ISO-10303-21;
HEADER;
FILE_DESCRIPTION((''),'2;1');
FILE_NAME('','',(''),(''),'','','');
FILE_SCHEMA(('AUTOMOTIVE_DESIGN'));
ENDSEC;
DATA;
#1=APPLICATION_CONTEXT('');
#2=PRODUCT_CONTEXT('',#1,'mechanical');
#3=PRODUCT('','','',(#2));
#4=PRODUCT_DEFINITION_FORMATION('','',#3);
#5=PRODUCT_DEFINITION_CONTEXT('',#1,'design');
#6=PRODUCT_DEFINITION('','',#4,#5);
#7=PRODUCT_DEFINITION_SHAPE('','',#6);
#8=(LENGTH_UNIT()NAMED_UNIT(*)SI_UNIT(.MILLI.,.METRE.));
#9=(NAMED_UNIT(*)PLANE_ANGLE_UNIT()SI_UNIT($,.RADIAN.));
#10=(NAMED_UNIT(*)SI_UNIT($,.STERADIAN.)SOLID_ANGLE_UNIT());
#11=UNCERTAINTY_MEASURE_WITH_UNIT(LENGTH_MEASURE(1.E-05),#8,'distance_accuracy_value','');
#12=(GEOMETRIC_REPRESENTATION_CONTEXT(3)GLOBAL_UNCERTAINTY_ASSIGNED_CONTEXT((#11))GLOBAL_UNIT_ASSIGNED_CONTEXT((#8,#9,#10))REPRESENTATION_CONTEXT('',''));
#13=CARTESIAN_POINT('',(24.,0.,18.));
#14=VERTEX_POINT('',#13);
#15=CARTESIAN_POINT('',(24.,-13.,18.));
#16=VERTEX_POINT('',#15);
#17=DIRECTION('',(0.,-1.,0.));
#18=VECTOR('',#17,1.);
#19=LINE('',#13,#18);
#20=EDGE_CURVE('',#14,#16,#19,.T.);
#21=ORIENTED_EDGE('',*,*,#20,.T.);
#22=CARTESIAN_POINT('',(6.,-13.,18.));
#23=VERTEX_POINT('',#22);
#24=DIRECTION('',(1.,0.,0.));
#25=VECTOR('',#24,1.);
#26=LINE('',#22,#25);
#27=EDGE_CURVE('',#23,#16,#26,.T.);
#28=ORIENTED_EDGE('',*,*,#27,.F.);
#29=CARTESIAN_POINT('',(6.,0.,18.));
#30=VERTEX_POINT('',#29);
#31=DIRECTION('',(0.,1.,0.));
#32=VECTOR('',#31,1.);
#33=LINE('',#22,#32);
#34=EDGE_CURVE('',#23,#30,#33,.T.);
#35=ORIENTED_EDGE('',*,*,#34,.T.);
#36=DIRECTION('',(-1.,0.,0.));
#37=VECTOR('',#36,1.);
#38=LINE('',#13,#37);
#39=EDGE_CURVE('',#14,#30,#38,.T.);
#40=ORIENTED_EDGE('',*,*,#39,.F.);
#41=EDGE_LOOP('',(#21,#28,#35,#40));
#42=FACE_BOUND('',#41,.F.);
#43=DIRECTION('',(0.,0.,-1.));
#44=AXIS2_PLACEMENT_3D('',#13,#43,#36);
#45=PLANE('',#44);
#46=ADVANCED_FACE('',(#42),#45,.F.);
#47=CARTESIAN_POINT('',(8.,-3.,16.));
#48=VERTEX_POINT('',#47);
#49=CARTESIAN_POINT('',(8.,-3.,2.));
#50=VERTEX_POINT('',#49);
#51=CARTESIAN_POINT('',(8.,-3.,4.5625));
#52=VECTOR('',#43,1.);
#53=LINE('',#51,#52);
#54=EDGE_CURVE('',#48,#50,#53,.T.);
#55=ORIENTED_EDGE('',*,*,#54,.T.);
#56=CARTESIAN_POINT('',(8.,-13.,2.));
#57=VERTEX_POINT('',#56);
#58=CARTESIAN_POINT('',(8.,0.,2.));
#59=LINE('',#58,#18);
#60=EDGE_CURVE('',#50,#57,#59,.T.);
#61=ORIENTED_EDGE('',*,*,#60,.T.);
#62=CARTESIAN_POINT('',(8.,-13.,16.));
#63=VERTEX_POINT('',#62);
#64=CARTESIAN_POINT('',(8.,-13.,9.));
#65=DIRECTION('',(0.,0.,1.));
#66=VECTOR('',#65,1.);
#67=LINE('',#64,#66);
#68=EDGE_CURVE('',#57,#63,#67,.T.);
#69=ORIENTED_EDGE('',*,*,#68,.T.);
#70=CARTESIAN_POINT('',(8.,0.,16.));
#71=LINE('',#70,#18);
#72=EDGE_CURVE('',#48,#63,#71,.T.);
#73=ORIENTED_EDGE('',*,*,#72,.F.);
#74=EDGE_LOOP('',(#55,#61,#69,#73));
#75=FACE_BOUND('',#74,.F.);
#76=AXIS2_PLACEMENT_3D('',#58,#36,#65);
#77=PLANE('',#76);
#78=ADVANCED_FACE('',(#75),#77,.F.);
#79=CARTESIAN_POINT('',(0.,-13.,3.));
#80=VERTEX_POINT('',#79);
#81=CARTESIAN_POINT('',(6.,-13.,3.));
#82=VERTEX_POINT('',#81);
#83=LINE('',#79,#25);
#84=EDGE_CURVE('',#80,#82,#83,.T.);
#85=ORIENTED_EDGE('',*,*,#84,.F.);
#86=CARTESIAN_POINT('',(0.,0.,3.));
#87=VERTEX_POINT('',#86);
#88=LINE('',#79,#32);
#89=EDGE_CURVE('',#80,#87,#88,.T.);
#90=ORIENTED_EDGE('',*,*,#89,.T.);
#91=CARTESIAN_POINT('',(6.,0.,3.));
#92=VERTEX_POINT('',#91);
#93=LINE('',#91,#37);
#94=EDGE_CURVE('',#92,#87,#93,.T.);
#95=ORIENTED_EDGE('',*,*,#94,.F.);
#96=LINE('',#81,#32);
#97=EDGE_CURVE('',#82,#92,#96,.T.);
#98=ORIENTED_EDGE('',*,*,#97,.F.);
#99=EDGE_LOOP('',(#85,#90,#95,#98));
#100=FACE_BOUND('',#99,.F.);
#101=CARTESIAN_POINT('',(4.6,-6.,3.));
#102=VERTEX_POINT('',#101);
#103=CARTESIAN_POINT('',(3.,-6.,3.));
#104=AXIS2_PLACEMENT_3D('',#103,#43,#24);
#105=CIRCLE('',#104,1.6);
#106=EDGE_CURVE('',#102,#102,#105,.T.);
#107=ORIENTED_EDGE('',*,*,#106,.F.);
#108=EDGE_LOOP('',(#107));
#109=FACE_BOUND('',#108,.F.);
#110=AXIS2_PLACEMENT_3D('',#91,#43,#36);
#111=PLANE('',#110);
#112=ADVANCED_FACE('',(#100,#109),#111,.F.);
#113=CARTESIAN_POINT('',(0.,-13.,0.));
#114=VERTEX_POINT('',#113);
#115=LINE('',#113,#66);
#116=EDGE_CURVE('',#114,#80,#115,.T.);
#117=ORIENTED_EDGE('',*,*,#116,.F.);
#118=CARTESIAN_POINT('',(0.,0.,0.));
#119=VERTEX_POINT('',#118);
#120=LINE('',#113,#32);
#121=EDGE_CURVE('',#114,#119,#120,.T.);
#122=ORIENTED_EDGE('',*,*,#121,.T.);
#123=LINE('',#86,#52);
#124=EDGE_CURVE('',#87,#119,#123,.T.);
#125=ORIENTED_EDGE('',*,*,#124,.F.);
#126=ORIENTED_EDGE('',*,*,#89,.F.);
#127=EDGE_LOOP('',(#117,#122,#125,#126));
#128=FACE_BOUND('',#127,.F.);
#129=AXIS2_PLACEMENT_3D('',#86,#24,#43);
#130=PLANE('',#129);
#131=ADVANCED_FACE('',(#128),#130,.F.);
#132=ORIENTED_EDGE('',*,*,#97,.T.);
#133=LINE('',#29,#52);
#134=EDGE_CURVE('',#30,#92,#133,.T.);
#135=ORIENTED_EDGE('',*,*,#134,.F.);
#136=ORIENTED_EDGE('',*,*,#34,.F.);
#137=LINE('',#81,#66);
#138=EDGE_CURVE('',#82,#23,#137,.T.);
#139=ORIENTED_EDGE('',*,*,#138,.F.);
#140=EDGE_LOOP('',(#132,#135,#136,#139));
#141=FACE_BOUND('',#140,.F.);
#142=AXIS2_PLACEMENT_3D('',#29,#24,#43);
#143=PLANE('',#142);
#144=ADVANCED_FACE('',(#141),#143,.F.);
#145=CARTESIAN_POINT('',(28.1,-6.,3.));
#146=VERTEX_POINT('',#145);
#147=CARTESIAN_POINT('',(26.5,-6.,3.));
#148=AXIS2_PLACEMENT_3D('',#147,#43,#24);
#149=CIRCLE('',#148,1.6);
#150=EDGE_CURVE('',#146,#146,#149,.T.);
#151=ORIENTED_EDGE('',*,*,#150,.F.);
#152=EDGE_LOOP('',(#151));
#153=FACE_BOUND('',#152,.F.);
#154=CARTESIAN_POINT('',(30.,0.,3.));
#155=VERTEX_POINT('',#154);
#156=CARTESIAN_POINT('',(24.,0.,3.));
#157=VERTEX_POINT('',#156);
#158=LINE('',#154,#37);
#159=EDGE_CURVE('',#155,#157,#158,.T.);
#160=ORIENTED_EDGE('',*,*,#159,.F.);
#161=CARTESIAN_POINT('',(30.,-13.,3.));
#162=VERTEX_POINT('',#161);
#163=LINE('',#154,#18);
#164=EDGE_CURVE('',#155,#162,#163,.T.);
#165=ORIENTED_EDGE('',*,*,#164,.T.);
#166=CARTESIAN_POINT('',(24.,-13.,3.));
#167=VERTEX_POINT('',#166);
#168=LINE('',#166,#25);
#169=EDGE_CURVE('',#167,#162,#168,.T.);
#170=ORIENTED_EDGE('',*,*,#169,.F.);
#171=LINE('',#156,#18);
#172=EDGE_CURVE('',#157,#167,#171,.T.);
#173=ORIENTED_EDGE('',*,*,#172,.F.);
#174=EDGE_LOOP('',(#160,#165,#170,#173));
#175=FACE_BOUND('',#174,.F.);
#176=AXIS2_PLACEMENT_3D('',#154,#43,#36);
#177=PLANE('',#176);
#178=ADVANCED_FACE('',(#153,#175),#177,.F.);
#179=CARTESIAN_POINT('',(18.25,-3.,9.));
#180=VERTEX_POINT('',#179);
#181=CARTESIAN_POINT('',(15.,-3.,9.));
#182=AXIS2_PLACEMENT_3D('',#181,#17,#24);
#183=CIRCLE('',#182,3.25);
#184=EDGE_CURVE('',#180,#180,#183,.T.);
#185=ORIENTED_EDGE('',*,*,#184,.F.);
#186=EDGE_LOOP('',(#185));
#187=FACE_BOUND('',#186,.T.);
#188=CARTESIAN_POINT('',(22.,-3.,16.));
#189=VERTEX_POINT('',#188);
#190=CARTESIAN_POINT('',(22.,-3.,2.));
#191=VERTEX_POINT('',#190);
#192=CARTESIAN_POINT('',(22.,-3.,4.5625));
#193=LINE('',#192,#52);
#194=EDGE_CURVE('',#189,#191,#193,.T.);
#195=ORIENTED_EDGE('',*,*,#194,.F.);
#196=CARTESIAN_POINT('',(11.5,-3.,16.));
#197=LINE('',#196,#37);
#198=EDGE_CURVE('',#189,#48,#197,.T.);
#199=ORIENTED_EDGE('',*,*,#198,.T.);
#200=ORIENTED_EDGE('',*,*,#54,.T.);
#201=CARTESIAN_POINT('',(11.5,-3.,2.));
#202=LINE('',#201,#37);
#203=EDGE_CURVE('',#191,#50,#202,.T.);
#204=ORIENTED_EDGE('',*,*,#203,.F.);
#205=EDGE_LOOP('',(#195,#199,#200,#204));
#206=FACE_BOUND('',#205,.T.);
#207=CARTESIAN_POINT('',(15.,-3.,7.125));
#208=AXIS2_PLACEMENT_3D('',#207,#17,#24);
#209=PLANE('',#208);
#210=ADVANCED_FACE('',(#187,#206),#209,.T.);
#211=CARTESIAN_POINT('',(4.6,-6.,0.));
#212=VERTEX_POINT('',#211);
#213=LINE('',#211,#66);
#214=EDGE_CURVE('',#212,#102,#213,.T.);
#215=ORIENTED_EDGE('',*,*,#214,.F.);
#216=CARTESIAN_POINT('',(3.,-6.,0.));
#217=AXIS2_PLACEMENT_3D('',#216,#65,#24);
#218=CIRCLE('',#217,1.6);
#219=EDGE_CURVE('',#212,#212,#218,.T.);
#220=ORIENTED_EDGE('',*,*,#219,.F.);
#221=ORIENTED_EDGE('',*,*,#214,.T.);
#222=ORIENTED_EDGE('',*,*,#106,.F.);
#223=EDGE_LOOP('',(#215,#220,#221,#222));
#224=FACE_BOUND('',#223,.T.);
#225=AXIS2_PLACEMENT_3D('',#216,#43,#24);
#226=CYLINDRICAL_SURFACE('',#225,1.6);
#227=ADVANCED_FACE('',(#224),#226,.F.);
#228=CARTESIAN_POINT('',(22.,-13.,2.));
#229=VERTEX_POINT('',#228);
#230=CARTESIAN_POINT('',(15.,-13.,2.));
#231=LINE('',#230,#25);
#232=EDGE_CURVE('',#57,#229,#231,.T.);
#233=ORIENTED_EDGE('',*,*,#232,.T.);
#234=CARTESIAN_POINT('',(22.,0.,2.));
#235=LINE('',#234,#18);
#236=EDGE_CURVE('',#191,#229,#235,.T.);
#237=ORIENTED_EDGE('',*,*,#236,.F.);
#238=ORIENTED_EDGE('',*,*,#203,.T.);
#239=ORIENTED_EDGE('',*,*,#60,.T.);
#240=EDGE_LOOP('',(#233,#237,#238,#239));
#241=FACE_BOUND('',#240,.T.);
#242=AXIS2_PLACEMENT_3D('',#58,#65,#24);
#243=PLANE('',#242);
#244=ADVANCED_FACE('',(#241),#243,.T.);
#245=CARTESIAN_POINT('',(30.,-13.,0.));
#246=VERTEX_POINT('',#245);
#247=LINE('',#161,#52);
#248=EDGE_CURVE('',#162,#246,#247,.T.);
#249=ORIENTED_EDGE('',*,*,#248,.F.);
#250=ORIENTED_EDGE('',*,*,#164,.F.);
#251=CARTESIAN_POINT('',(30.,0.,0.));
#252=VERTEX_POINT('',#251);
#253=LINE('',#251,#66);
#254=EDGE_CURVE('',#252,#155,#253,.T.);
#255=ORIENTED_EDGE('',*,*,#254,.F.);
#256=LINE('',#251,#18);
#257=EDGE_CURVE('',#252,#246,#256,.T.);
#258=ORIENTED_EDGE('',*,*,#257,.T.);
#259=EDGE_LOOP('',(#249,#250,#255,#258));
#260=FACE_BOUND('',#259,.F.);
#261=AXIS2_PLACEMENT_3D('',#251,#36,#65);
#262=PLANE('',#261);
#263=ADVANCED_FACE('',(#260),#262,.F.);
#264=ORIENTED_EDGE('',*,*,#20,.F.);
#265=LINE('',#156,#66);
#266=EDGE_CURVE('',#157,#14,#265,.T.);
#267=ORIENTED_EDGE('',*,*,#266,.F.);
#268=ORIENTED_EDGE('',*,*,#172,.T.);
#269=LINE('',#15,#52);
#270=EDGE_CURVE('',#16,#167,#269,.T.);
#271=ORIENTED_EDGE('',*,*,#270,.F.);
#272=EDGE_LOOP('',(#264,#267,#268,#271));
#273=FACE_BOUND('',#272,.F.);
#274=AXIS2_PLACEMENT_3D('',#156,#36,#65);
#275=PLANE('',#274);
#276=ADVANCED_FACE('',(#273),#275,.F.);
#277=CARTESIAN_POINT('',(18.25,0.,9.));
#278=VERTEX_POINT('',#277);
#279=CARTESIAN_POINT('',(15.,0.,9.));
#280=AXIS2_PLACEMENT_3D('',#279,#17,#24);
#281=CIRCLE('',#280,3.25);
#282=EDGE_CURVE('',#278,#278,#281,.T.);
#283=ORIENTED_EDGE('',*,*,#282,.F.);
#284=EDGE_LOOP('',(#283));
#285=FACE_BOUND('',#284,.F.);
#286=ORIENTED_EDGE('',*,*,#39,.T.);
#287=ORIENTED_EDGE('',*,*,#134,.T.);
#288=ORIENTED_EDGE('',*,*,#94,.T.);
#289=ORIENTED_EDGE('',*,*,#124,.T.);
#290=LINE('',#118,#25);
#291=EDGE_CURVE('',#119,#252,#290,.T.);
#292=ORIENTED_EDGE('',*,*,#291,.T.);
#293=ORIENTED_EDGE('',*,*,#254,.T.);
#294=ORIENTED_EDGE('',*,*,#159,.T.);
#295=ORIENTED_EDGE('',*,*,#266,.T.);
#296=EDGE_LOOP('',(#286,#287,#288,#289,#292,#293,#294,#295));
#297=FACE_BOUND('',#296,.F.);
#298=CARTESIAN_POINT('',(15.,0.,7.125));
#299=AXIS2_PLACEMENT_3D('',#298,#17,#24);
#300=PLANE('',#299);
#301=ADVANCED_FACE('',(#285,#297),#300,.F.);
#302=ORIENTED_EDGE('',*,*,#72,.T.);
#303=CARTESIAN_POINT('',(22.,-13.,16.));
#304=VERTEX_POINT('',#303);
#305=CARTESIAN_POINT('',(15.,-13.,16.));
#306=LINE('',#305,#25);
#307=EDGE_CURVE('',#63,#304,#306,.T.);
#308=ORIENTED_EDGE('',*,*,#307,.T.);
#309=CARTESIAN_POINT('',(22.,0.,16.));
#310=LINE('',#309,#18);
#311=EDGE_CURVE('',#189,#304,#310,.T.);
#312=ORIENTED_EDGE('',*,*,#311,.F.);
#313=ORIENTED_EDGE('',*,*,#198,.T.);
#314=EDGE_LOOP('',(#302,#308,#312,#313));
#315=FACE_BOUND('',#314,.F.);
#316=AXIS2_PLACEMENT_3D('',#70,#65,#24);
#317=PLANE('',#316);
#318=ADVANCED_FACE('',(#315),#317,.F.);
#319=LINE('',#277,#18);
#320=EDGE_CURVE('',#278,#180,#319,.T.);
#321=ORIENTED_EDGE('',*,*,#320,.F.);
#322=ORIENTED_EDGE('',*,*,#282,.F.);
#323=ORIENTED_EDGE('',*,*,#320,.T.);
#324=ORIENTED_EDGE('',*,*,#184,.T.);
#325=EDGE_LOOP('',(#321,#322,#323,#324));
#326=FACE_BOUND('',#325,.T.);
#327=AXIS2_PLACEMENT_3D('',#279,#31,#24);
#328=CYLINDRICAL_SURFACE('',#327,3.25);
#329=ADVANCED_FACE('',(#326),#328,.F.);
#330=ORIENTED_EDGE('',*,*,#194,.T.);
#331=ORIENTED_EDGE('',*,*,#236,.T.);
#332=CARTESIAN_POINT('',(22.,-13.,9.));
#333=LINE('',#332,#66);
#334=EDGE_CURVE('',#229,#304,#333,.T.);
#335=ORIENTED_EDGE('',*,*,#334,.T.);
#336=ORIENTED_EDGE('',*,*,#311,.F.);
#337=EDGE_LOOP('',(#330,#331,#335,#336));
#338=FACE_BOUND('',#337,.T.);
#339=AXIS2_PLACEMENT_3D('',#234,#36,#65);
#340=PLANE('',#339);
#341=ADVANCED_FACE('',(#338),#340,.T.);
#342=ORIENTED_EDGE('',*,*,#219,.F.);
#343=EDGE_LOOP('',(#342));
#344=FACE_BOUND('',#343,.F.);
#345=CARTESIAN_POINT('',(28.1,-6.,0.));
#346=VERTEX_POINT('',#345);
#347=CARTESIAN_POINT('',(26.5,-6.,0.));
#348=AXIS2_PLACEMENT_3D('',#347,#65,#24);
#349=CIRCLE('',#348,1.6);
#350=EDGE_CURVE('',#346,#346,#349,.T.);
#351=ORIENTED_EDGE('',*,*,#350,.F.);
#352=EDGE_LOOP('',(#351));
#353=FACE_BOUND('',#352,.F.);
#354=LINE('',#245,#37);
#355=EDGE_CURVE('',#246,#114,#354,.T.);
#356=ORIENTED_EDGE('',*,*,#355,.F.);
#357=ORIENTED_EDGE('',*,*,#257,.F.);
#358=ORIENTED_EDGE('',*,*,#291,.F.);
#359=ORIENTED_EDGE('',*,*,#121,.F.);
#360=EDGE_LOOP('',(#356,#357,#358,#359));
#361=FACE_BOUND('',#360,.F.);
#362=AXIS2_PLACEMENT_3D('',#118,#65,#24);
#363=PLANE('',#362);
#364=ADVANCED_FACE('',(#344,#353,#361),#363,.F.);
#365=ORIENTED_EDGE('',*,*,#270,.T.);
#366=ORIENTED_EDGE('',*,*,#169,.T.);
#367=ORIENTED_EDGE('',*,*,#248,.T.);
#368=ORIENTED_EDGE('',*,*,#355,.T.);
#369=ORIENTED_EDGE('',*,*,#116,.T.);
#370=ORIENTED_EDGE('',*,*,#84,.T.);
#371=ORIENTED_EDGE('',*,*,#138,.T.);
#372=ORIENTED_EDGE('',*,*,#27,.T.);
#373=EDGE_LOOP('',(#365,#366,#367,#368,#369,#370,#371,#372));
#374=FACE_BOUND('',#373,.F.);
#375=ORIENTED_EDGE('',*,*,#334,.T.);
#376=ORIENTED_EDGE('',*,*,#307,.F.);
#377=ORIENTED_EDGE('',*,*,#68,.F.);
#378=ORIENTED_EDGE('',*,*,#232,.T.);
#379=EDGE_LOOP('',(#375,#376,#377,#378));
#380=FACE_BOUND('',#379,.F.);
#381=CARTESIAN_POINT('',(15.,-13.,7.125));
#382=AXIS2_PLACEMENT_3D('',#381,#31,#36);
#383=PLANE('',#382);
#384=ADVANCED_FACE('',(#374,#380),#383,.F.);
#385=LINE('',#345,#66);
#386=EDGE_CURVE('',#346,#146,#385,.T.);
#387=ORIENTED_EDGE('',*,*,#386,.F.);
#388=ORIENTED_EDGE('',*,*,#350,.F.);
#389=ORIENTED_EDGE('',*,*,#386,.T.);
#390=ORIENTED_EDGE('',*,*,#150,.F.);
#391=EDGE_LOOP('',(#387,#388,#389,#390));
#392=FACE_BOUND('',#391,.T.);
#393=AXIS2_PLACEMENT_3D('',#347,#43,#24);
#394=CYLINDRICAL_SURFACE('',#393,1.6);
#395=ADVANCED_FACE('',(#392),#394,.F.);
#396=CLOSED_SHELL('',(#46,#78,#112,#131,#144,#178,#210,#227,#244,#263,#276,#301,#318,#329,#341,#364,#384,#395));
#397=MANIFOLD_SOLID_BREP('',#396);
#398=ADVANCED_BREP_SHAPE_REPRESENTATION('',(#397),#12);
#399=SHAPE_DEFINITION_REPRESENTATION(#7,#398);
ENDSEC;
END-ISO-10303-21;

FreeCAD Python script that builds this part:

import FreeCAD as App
import Part
import Sketcher


def add_polygon(sketch, points):
    """Adds a closed chain of lines whose ends are joined by coincident constraints."""
    first, n = sketch.GeometryCount, len(points)
    for a, b in zip(points, points[1:] + points[:1]):
        sketch.addGeometry(Part.LineSegment(App.Vector(*a, 0), App.Vector(*b, 0)), False)
    for i in range(n):
        sketch.addConstraint(Sketcher.Constraint("Coincident", first + i, 2, first + (i + 1) % n, 1))

doc = App.newDocument("Part")
body = doc.addObject("PartDesign::Body", "Body")

sketch1 = body.newObject("Sketcher::SketchObject", "Sketch")
sketch1.AttachmentSupport = (doc.getObject("XZ_Plane"), [""])
sketch1.MapMode = "FlatFace"
add_polygon(sketch1, [(0, 0), (30, 0), (30, 3), (24, 3), (24, 18), (6, 18), (6, 3), (0, 3)])
sketch1.addGeometry(Part.Circle(App.Vector(15, 9, 0), App.Vector(0, 0, 1), 3.2), False)
sketch1.addConstraint([
    Sketcher.Constraint("Horizontal", 0),
    Sketcher.Constraint("Vertical", 1),
    Sketcher.Constraint("Horizontal", 2),
    Sketcher.Constraint("Vertical", 3),
    Sketcher.Constraint("Horizontal", 4),
    Sketcher.Constraint("Vertical", 5),
    Sketcher.Constraint("Horizontal", 6),
    Sketcher.Constraint("Vertical", 7),
    Sketcher.Constraint("Coincident", 7, 2, -1, 1),
    Sketcher.Constraint("Horizontal", 2, 2, 5, 2),
    Sketcher.Constraint("Equal", 2, 6),
    Sketcher.Constraint("Diameter", 8, 6.5),
    Sketcher.Constraint("DistanceX", 0, 1, 0, 2, 30.0),
    Sketcher.Constraint("DistanceX", 2, 2, 2, 1, 6.0),
    Sketcher.Constraint("DistanceY", 1, 1, 1, 2, 3.0),
    Sketcher.Constraint("DistanceY", 3, 1, 3, 2, 15.0),
    Sketcher.Constraint("DistanceX", -1, 1, 8, 3, 15.0),
    Sketcher.Constraint("DistanceY", -1, 1, 8, 3, 9.0),
])
pad1 = body.newObject("PartDesign::Pad", "Pad")
pad1.Profile = sketch1
pad1.Length = 3

sketch2 = body.newObject("Sketcher::SketchObject", "Sketch001")
sketch2.AttachmentSupport = (doc.getObject("XZ_Plane"), [""])
sketch2.MapMode = "FlatFace"
add_polygon(sketch2, [(0, 3), (0, 0), (30, 0), (30, 3), (24, 3), (24, 18), (6, 18), (6, 3)])
add_polygon(sketch2, [(8, 2), (8, 16), (22, 16), (22, 2)])
sketch2.addConstraint([
    Sketcher.Constraint("Vertical", 0),
    Sketcher.Constraint("Horizontal", 1),
    Sketcher.Constraint("Vertical", 2),
    Sketcher.Constraint("Horizontal", 3),
    Sketcher.Constraint("Vertical", 4),
    Sketcher.Constraint("Horizontal", 5),
    Sketcher.Constraint("Vertical", 6),
    Sketcher.Constraint("Horizontal", 7),
    Sketcher.Constraint("Vertical", 8),
    Sketcher.Constraint("Horizontal", 9),
    Sketcher.Constraint("Vertical", 10),
    Sketcher.Constraint("Horizontal", 11),
    Sketcher.Constraint("Coincident", 0, 2, -1, 1),
    Sketcher.Constraint("Horizontal", 3, 2, 6, 2),
    Sketcher.Constraint("Equal", 3, 7),
    Sketcher.Constraint("Equal", 11, 8),
    Sketcher.Constraint("DistanceX", 1, 1, 1, 2, 30.0),
    Sketcher.Constraint("DistanceX", 3, 2, 3, 1, 6.0),
    Sketcher.Constraint("DistanceX", 9, 1, 9, 2, 14.0),
    Sketcher.Constraint("DistanceY", 0, 2, 0, 1, 3.0),
    Sketcher.Constraint("DistanceY", 4, 1, 4, 2, 15.0),
    Sketcher.Constraint("DistanceX", -1, 1, 8, 2, 8.0),
    Sketcher.Constraint("DistanceY", -1, 1, 8, 2, 16.0),
])
pad2 = body.newObject("PartDesign::Pad", "Pad001")
pad2.Profile = sketch2
pad2.Length = 13

sketch3 = body.newObject("Sketcher::SketchObject", "Sketch002")
sketch3.AttachmentSupport = (doc.getObject("XY_Plane"), [""])
sketch3.MapMode = "FlatFace"
sketch3.addGeometry([
    Part.Circle(App.Vector(3, -6, 0), App.Vector(0, 0, 1), 1.6),
    Part.Circle(App.Vector(26.5, -6, 0), App.Vector(0, 0, 1), 1.6),
], False)
sketch3.addConstraint([
    Sketcher.Constraint("Equal", 0, 1),
    Sketcher.Constraint("Horizontal", 0, 3, 1, 3),
    Sketcher.Constraint("Diameter", 0, 3.2),
    Sketcher.Constraint("DistanceX", -1, 1, 0, 3, 3.0),
    Sketcher.Constraint("DistanceY", 0, 3, -1, 1, 6.0),
    Sketcher.Constraint("DistanceX", -1, 1, 1, 3, 26.5),
])
pocket1 = body.newObject("PartDesign::Pocket", "Pocket")
pocket1.Profile = sketch3
pocket1.Type = "ThroughAll"
pocket1.Reversed = True

doc.recompute()
